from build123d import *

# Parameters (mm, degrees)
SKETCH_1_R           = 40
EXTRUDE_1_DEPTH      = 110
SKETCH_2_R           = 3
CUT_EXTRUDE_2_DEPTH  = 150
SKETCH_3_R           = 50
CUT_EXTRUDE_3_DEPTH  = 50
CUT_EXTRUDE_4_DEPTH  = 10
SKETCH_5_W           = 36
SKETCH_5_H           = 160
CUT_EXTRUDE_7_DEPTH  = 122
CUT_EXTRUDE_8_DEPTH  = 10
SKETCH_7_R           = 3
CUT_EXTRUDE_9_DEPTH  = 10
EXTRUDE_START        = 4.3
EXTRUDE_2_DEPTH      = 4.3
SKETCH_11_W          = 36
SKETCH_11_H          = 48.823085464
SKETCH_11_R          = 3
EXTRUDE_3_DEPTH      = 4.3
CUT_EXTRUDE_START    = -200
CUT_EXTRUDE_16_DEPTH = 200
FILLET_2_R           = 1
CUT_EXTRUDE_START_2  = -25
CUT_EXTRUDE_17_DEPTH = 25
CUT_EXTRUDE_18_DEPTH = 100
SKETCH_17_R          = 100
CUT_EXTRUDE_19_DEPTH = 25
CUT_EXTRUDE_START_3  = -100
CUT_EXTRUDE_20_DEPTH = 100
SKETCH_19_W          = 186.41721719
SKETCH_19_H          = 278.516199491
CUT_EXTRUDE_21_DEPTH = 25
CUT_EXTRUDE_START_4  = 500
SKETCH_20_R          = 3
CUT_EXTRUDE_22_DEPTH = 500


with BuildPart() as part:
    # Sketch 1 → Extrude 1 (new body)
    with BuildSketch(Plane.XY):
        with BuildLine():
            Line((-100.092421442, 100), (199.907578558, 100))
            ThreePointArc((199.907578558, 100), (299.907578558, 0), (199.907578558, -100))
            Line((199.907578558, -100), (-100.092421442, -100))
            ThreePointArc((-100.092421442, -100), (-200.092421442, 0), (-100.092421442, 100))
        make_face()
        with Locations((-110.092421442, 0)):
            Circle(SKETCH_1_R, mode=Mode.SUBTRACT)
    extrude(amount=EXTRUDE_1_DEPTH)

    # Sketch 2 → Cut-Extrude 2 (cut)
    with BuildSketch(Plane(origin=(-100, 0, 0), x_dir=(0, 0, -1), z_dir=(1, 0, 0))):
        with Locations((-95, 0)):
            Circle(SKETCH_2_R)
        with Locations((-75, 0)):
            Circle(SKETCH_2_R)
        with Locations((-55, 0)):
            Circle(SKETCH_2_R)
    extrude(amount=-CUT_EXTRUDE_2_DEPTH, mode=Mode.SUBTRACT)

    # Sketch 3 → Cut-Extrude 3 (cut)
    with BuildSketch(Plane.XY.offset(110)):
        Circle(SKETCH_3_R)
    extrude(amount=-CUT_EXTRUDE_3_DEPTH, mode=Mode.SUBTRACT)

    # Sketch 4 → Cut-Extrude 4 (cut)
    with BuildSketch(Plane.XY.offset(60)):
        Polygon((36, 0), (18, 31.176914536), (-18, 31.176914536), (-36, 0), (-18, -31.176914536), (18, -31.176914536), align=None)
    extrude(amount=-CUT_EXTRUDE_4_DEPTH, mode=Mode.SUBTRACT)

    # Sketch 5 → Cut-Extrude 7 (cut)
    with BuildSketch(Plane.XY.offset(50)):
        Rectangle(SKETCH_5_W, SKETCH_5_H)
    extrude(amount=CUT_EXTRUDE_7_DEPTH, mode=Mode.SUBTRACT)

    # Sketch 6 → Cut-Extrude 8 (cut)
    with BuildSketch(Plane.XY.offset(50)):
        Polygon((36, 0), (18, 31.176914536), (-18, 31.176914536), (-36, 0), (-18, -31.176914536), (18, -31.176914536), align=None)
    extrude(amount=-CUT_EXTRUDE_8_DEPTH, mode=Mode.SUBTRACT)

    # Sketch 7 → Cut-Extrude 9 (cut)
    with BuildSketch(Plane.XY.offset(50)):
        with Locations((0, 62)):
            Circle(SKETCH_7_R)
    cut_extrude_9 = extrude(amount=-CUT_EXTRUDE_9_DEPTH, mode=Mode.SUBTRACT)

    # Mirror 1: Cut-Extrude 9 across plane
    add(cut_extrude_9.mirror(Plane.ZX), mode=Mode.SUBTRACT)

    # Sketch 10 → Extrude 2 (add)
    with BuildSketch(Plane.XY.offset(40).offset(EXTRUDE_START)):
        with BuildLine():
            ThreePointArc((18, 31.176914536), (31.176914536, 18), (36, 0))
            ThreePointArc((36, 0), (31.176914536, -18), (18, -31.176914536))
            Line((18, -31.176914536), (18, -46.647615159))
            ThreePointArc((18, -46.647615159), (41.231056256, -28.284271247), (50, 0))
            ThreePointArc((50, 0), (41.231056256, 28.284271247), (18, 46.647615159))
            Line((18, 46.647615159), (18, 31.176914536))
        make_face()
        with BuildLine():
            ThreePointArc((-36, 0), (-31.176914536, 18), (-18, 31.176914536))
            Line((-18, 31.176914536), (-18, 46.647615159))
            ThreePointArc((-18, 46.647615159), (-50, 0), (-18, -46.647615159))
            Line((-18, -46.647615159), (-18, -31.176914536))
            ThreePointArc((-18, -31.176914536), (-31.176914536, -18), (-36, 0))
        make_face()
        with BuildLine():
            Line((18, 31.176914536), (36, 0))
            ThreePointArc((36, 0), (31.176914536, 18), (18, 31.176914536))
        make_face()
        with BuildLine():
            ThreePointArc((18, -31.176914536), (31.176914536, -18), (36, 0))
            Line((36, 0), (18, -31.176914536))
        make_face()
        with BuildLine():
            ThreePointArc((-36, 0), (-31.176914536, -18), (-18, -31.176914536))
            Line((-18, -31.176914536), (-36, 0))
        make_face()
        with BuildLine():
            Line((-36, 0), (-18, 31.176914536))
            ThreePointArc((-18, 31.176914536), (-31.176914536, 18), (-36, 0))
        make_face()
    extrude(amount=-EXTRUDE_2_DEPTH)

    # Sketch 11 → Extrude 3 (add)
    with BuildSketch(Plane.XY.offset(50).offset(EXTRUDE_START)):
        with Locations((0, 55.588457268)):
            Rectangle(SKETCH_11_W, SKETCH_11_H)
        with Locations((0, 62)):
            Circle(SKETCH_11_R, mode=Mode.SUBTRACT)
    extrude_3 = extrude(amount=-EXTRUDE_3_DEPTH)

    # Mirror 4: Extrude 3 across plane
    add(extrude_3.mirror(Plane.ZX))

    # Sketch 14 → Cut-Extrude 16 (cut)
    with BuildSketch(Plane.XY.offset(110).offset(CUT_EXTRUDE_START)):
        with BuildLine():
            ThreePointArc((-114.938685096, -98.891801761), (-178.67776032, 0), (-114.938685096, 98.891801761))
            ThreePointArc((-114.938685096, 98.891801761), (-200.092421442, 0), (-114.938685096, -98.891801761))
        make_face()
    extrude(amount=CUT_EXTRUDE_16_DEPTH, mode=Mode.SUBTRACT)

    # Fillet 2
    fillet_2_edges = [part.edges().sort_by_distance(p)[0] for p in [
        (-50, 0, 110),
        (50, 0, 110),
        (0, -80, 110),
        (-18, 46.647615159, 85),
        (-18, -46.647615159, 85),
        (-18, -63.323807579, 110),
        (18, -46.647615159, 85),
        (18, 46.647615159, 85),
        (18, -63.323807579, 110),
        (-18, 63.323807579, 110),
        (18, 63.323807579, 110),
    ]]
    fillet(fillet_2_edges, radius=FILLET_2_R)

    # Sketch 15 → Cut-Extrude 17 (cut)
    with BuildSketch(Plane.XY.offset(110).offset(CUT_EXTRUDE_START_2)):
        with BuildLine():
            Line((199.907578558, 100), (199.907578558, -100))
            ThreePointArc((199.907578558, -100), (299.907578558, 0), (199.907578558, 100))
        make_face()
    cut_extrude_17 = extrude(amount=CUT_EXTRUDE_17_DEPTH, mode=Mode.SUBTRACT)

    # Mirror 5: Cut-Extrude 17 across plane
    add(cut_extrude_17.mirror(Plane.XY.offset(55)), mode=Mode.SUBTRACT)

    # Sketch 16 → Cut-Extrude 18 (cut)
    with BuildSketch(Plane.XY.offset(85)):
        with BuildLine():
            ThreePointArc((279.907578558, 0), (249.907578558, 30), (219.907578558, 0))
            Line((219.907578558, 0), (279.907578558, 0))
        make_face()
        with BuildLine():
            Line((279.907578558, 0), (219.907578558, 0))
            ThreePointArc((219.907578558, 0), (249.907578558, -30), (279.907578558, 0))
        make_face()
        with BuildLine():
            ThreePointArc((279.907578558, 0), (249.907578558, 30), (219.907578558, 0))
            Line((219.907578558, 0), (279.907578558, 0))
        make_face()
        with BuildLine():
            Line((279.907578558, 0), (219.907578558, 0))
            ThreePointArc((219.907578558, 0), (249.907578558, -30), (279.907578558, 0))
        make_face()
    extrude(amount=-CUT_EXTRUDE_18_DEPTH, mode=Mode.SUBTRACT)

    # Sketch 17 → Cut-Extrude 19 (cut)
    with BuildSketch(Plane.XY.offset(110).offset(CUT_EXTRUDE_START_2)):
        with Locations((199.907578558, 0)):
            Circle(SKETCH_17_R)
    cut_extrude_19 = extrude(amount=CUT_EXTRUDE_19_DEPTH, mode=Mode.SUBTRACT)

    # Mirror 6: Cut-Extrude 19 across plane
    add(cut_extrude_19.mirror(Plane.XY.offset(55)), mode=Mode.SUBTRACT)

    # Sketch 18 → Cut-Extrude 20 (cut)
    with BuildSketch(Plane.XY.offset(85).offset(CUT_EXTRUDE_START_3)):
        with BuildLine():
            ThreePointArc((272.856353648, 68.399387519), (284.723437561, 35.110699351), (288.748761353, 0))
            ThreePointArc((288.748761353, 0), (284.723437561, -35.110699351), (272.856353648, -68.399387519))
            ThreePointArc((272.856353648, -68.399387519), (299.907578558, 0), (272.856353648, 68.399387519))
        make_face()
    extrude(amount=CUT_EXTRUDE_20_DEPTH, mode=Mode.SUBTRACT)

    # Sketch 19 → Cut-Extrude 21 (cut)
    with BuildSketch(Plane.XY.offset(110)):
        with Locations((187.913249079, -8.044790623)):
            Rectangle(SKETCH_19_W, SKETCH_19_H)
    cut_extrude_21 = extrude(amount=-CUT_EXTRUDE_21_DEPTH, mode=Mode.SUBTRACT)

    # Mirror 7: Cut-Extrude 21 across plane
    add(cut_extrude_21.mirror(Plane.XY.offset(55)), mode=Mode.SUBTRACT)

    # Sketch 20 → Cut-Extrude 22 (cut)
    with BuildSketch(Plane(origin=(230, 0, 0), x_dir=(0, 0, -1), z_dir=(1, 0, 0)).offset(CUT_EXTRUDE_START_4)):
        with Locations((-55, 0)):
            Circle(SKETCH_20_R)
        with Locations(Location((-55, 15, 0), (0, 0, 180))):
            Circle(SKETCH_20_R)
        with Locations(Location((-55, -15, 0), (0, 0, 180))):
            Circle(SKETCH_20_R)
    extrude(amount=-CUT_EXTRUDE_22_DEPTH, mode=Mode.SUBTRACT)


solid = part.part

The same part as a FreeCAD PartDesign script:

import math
import FreeCAD as App
import Part
import Sketcher
Q = App.Units.Quantity


def edges_at(feature, points):
    """Names of the edges that pass closest to the given points."""
    edges = feature.Shape.Edges
    near = lambda p: min(range(len(edges)), key=lambda i: edges[i].distToShape(Part.Vertex(*p))[0])
    return sorted({f"Edge{near(p) + 1}" for p in points})


def add_polygon(sketch, points):
    """Adds a closed chain of lines whose ends are joined by coincident constraints."""
    first, n = sketch.GeometryCount, len(points)
    for a, b in zip(points, points[1:] + points[:1]):
        sketch.addGeometry(Part.LineSegment(App.Vector(*a, 0), App.Vector(*b, 0)), False)
    for i in range(n):
        sketch.addConstraint(Sketcher.Constraint("Coincident", first + i, 2, first + (i + 1) % n, 1))

doc = App.newDocument("Part")
params = doc.addObject("Spreadsheet::Sheet", "Params")
for row, (alias, value) in enumerate([
    ("sketch1_diameter", "80 mm"),
    ("sketch1_radius", "100 mm"),
    ("sketch1_width", "300 mm"),
    ("pad1_length", "110 mm"),
    ("sketch2_diameter", "6 mm"),
    ("pocket1_length", "150 mm"),
    ("sketch3_diameter", "100 mm"),
    ("pocket2_length", "50 mm"),
    ("sketch4_width", "36 mm"),
    ("sketch4_length", "36 mm"),
    ("pocket3_length", "10 mm"),
    ("sketch5_width", "36 mm"),
    ("sketch5_height", "160 mm"),
    ("pocket4_length", "122 mm"),
    ("sketch6_width", "36 mm"),
    ("sketch6_length", "36 mm"),
    ("pocket5_length", "10 mm"),
    ("sketch7_diameter", "6 mm"),
    ("pocket6_length", "10 mm"),
    ("sketch8_radius", "50 mm"),
    ("sketch8_length", "36 mm"),
    ("pad2_length", "4.3 mm"),
    ("sketch9_diameter", "6 mm"),
    ("sketch9_width", "36 mm"),
    ("pad3_length", "4.3 mm"),
    ("sketch10_radius", "100 mm"),
    ("pocket7_length", "200 mm"),
    ("fillet_radius", "1 mm"),
    ("sketch11_radius", "100 mm"),
    ("pocket8_length", "25 mm"),
    ("sketch12_diameter", "60 mm"),
    ("pocket9_length", "100 mm"),
    ("sketch13_diameter", "200 mm"),
    ("pocket10_length", "25 mm"),
    ("sketch14_radius", "100 mm"),
    ("pocket11_length", "100 mm"),
    ("pocket12_length", "25 mm"),
    ("sketch16_diameter", "6 mm"),
    ("pocket13_length", "500 mm"),
], start=1):
    params.set(f"A{row}", alias)
    params.set(f"B{row}", "=" + value)
    params.setAlias(f"B{row}", alias)

body = doc.addObject("PartDesign::Body", "Body")

# Sketch on XY plane
sketch1 = body.newObject("Sketcher::SketchObject", "Sketch")
sketch1.AttachmentSupport = (doc.getObject("XY_Plane"), [""])
sketch1.MapMode = "FlatFace"
sketch1.addGeometry([
    Part.LineSegment(App.Vector(200, 100, 0), App.Vector(-100, 100, 0)),  # 0
    Part.ArcOfCircle(Part.Circle(App.Vector(-100, 0, 0), App.Vector(0, 0, 1), 100), math.radians(90), math.radians(270)),  # 1
    Part.LineSegment(App.Vector(-100, -100, 0), App.Vector(200, -100, 0)),  # 2
    Part.ArcOfCircle(Part.Circle(App.Vector(200, 0, 0), App.Vector(0, 0, 1), 100), math.radians(-90), math.radians(90)),  # 3
    Part.Circle(App.Vector(-110, 0, 0), App.Vector(0, 0, 1), 40),  # 4
], False)
sketch1.addConstraint([
    Sketcher.Constraint("Tangent", 0, 2, 1, 1),
    Sketcher.Constraint("Tangent", 1, 2, 2, 1),
    Sketcher.Constraint("Tangent", 2, 2, 3, 1),
    Sketcher.Constraint("Tangent", 3, 2, 0, 1),
    Sketcher.Constraint("Horizontal", 0),
    Sketcher.Constraint("Horizontal", 2),
    Sketcher.Constraint("PointOnObject", 1, 3, -1),
    Sketcher.Constraint("PointOnObject", 4, 3, -1),
    Sketcher.Constraint("Diameter", 4, 80.0),
    Sketcher.Constraint("Radius", 1, 100.0),
    Sketcher.Constraint("DistanceX", 0, 2, 0, 1, 300.0),
    Sketcher.Constraint("DistanceX", 4, 3, 1, 3, 10.0),
    Sketcher.Constraint("DistanceX", 1, 3, -1, 1, 100.092421),
])
sketch1.setExpression("Constraints[8]", "Params.sketch1_diameter")
sketch1.setExpression("Constraints[9]", "Params.sketch1_radius")
sketch1.setExpression("Constraints[10]", "Params.sketch1_width")
pad1 = body.newObject("PartDesign::Pad", "Pad")
pad1.Profile = sketch1
pad1.setExpression("Length", "Params.pad1_length")

# Sketch on YZ plane
sketch2 = body.newObject("Sketcher::SketchObject", "Sketch001")
sketch2.AttachmentSupport = (doc.getObject("YZ_Plane"), [""])
sketch2.MapMode = "FlatFace"
sketch2.AttachmentOffset = App.Placement(App.Vector(0, 0, -100), App.Rotation())
sketch2.addGeometry([
    Part.Circle(App.Vector(0, 95, 0), App.Vector(0, 0, 1), 3),
    Part.Circle(App.Vector(0, 75, 0), App.Vector(0, 0, 1), 3),
    Part.Circle(App.Vector(0, 55, 0), App.Vector(0, 0, 1), 3),
], False)
sketch2.addConstraint([
    Sketcher.Constraint("Equal", 0, 1),
    Sketcher.Constraint("Equal", 1, 2),
    Sketcher.Constraint("PointOnObject", 0, 3, -2),
    Sketcher.Constraint("PointOnObject", 1, 3, -2),
    Sketcher.Constraint("PointOnObject", 2, 3, -2),
    Sketcher.Constraint("Diameter", 0, 6.0),
    Sketcher.Constraint("DistanceY", -1, 1, 0, 3, 95.0),
    Sketcher.Constraint("DistanceY", -1, 1, 1, 3, 75.0),
    Sketcher.Constraint("DistanceY", -1, 1, 2, 3, 55.0),
])
sketch2.setExpression("Constraints[5]", "Params.sketch2_diameter")
pocket1 = body.newObject("PartDesign::Pocket", "Pocket")
pocket1.Profile = sketch2
pocket1.setExpression("Length", "Params.pocket1_length")

# Sketch on XY plane
sketch3 = body.newObject("Sketcher::SketchObject", "Sketch002")
sketch3.AttachmentSupport = (doc.getObject("XY_Plane"), [""])
sketch3.MapMode = "FlatFace"
sketch3.AttachmentOffset = App.Placement(App.Vector(0, 0, 110), App.Rotation())
sketch3.addGeometry(Part.Circle(App.Vector(0, 0, 0), App.Vector(0, 0, 1), 50), False)
sketch3.addConstraint([
    Sketcher.Constraint("Coincident", 0, 3, -1, 1),
    Sketcher.Constraint("Diameter", 0, 100.0),
])
sketch3.setExpression("Constraints[1]", "Params.sketch3_diameter")
pocket2 = body.newObject("PartDesign::Pocket", "Pocket001")
pocket2.Profile = sketch3
pocket2.setExpression("Length", "Params.pocket2_length")

# Sketch on XY plane
sketch4 = body.newObject("Sketcher::SketchObject", "Sketch003")
sketch4.AttachmentSupport = (doc.getObject("XY_Plane"), [""])
sketch4.MapMode = "FlatFace"
sketch4.AttachmentOffset = App.Placement(App.Vector(0, 0, 60), App.Rotation())
add_polygon(sketch4, [(36, 0), (18, 31), (-18, 31), (-36, 0), (-18, -31), (18, -31)])  # lines 0-5
sketch4.addConstraint([
    Sketcher.Constraint("Horizontal", 1),
    Sketcher.Constraint("Horizontal", 4),
    Sketcher.Constraint("Symmetric", 0, 2, 3, 2, -1, 1),
    Sketcher.Constraint("Symmetric", 2, 2, 5, 2, -1, 1),
    Sketcher.Constraint("PointOnObject", 2, 2, -1),
    Sketcher.Constraint("Parallel", 2, 5),
    Sketcher.Constraint("Vertical", 1, 2, 3, 2),
    Sketcher.Constraint("DistanceX", 1, 2, 1, 1, 36.0),
    Sketcher.Constraint("Angle", 0, Q("120 deg")),
    Sketcher.Constraint("Distance", 0, 36.0),
])
sketch4.setExpression("Constraints[13]", "Params.sketch4_width")
sketch4.setExpression("Constraints[15]", "Params.sketch4_length")
pocket3 = body.newObject("PartDesign::Pocket", "Pocket002")
pocket3.Profile = sketch4
pocket3.setExpression("Length", "Params.pocket3_length")

# Sketch on XY plane
sketch5 = body.newObject("Sketcher::SketchObject", "Sketch004")
sketch5.AttachmentSupport = (doc.getObject("XY_Plane"), [""])
sketch5.MapMode = "FlatFace"
sketch5.AttachmentOffset = App.Placement(App.Vector(0, 0, 50), App.Rotation())
add_polygon(sketch5, [(-18, 80), (-18, -80), (18, -80), (18, 80)])  # lines 0-3
sketch5.addConstraint([
    Sketcher.Constraint("Vertical", 0),
    Sketcher.Constraint("Horizontal", 1),
    Sketcher.Constraint("Vertical", 2),
    Sketcher.Constraint("Horizontal", 3),
    Sketcher.Constraint("Symmetric", 0, 2, 2, 2, -1, 1),
    Sketcher.Constraint("DistanceX", 1, 1, 1, 2, 36.0),
    Sketcher.Constraint("DistanceY", 0, 2, 0, 1, 160.0),
])
sketch5.setExpression("Constraints[9]", "Params.sketch5_width")
sketch5.setExpression("Constraints[10]", "Params.sketch5_height")
pocket4 = body.newObject("PartDesign::Pocket", "Pocket003")
pocket4.Profile = sketch5
pocket4.setExpression("Length", "Params.pocket4_length")
pocket4.Reversed = True

# Sketch on XY plane
sketch6 = body.newObject("Sketcher::SketchObject", "Sketch005")
sketch6.AttachmentSupport = (doc.getObject("XY_Plane"), [""])
sketch6.MapMode = "FlatFace"
sketch6.AttachmentOffset = App.Placement(App.Vector(0, 0, 50), App.Rotation())
add_polygon(sketch6, [(36, 0), (18, 31), (-18, 31), (-36, 0), (-18, -31), (18, -31)])  # lines 0-5
sketch6.addConstraint([
    Sketcher.Constraint("Horizontal", 1),
    Sketcher.Constraint("Horizontal", 4),
    Sketcher.Constraint("Symmetric", 0, 2, 3, 2, -1, 1),
    Sketcher.Constraint("Symmetric", 2, 2, 5, 2, -1, 1),
    Sketcher.Constraint("PointOnObject", 2, 2, -1),
    Sketcher.Constraint("Parallel", 2, 5),
    Sketcher.Constraint("Vertical", 1, 2, 3, 2),
    Sketcher.Constraint("DistanceX", 1, 2, 1, 1, 36.0),
    Sketcher.Constraint("Angle", 0, Q("120 deg")),
    Sketcher.Constraint("Distance", 0, 36.0),
])
sketch6.setExpression("Constraints[13]", "Params.sketch6_width")
sketch6.setExpression("Constraints[15]", "Params.sketch6_length")
pocket5 = body.newObject("PartDesign::Pocket", "Pocket004")
pocket5.Profile = sketch6
pocket5.setExpression("Length", "Params.pocket5_length")

# Sketch on XY plane
sketch7 = body.newObject("Sketcher::SketchObject", "Sketch006")
sketch7.AttachmentSupport = (doc.getObject("XY_Plane"), [""])
sketch7.MapMode = "FlatFace"
sketch7.AttachmentOffset = App.Placement(App.Vector(0, 0, 50), App.Rotation())
sketch7.addGeometry(Part.Circle(App.Vector(0, 62, 0), App.Vector(0, 0, 1), 3), False)
sketch7.addConstraint([
    Sketcher.Constraint("PointOnObject", 0, 3, -2),
    Sketcher.Constraint("Diameter", 0, 6.0),
    Sketcher.Constraint("DistanceY", -1, 1, 0, 3, 62.0),
])
sketch7.setExpression("Constraints[1]", "Params.sketch7_diameter")
pocket6 = body.newObject("PartDesign::Pocket", "Pocket005")
pocket6.Profile = sketch7
pocket6.setExpression("Length", "Params.pocket6_length")
doc.recompute()

mirrored = body.newObject("PartDesign::Mirrored", "Mirrored")
mirrored.Originals = [pocket6]
mirrored.MirrorPlane = (doc.getObject("XZ_Plane"), [""])
body.Tip = mirrored

# Sketch on XY plane
sketch8 = body.newObject("Sketcher::SketchObject", "Sketch007")
sketch8.AttachmentSupport = (doc.getObject("XY_Plane"), [""])
sketch8.MapMode = "FlatFace"
sketch8.AttachmentOffset = App.Placement(App.Vector(0, 0, 44.3), App.Rotation())
sketch8.addGeometry([
    Part.LineSegment(App.Vector(18, -31, 0), App.Vector(18, -47, 0)),  # 0
    Part.ArcOfCircle(Part.Circle(App.Vector(0, 0, 0), App.Vector(0, 0, 1), 50), math.radians(-69), math.radians(0)),  # 1
    Part.ArcOfCircle(Part.Circle(App.Vector(0, 0, 0), App.Vector(0, 0, 1), 50), math.radians(0), math.radians(69)),  # 2
    Part.LineSegment(App.Vector(18, 47, 0), App.Vector(18, 31, 0)),  # 3
    Part.LineSegment(App.Vector(18, 31, 0), App.Vector(36, 0, 0)),  # 4
    Part.LineSegment(App.Vector(36, 0, 0), App.Vector(18, -31, 0)),  # 5
    Part.LineSegment(App.Vector(-18, 31, 0), App.Vector(-18, 47, 0)),  # 6
    Part.ArcOfCircle(Part.Circle(App.Vector(0, 0, 0), App.Vector(0, 0, 1), 50), math.radians(111), math.radians(249)),  # 7
    Part.LineSegment(App.Vector(-18, -47, 0), App.Vector(-18, -31, 0)),  # 8
    Part.LineSegment(App.Vector(-18, -31, 0), App.Vector(-36, 0, 0)),  # 9
    Part.LineSegment(App.Vector(-36, 0, 0), App.Vector(-18, 31, 0)),  # 10
], False)
sketch8.addConstraint([
    Sketcher.Constraint("Coincident", 0, 2, 1, 1),
    Sketcher.Constraint("Tangent", 1, 2, 2, 1),
    Sketcher.Constraint("Coincident", 2, 2, 3, 1),
    Sketcher.Constraint("Coincident", 3, 2, 4, 1),
    Sketcher.Constraint("Coincident", 4, 2, 5, 1),
    Sketcher.Constraint("Coincident", 5, 2, 0, 1),
    Sketcher.Constraint("Coincident", 6, 2, 7, 1),
    Sketcher.Constraint("Coincident", 7, 2, 8, 1),
    Sketcher.Constraint("Coincident", 8, 2, 9, 1),
    Sketcher.Constraint("Coincident", 9, 2, 10, 1),
    Sketcher.Constraint("Coincident", 10, 2, 6, 1),
    Sketcher.Constraint("Vertical", 0),
    Sketcher.Constraint("Vertical", 3),
    Sketcher.Constraint("Vertical", 6),
    Sketcher.Constraint("Vertical", 8),
    Sketcher.Constraint("Coincident", 1, 3, -1, 1),
    Sketcher.Constraint("Coincident", 7, 3, -1, 1),
    Sketcher.Constraint("Equal", 1, 2),
    Sketcher.Constraint("Equal", 2, 7),
    Sketcher.Constraint("Symmetric", 3, 2, 8, 2, -1, 1),
    Sketcher.Constraint("Symmetric", 4, 2, 9, 2, -1, 1),
    Sketcher.Constraint("Symmetric", 5, 2, 10, 2, -1, 1),
    Sketcher.Constraint("Symmetric", 5, 2, 8, 2, -2),
    Sketcher.Constraint("PointOnObject", 1, 2, -1),
    Sketcher.Constraint("PointOnObject", 4, 2, -1),
    Sketcher.Constraint("Radius", 1, 50.0),
    Sketcher.Constraint("Angle", 4, Q("-60 deg")),
    Sketcher.Constraint("Distance", 4, 36.0),
    Sketcher.Constraint("DistanceX", -1, 1, 0, 2, 18.0),
])
sketch8.setExpression("Constraints[25]", "Params.sketch8_radius")
sketch8.setExpression("Constraints[27]", "Params.sketch8_length")
pad2 = body.newObject("PartDesign::Pad", "Pad001")
pad2.Profile = sketch8
pad2.setExpression("Length", "Params.pad2_length")
pad2.Reversed = True

# Sketch on XY plane
sketch9 = body.newObject("Sketcher::SketchObject", "Sketch008")
sketch9.AttachmentSupport = (doc.getObject("XY_Plane"), [""])
sketch9.MapMode = "FlatFace"
sketch9.AttachmentOffset = App.Placement(App.Vector(0, 0, 54.3), App.Rotation())
add_polygon(sketch9, [(-18, 80), (-18, 31.2), (18, 31.2), (18, 80)])  # lines 0-3
sketch9.addGeometry(Part.Circle(App.Vector(0, 62, 0), App.Vector(0, 0, 1), 3), False)  # 4
sketch9.addConstraint([
    Sketcher.Constraint("Vertical", 0),
    Sketcher.Constraint("Horizontal", 1),
    Sketcher.Constraint("Vertical", 2),
    Sketcher.Constraint("Horizontal", 3),
    Sketcher.Constraint("PointOnObject", 4, 3, -2),
    Sketcher.Constraint("Diameter", 4, 6.0),
    Sketcher.Constraint("DistanceX", 1, 1, 1, 2, 36.0),
    Sketcher.Constraint("DistanceY", -1, 1, 4, 3, 62.0),
    Sketcher.Constraint("DistanceX", 0, 2, -1, 1, 18.0),
    Sketcher.Constraint("DistanceY", -1, 1, 2, 2, 80.0),
    Sketcher.Constraint("DistanceY", 0, 2, 0, 1, 48.823085),
])
sketch9.setExpression("Constraints[9]", "Params.sketch9_diameter")
sketch9.setExpression("Constraints[10]", "Params.sketch9_width")
pad3 = body.newObject("PartDesign::Pad", "Pad002")
pad3.Profile = sketch9
pad3.setExpression("Length", "Params.pad3_length")
pad3.Reversed = True
doc.recompute()

mirrored2 = body.newObject("PartDesign::Mirrored", "Mirrored001")
mirrored2.Originals = [pad3]
mirrored2.MirrorPlane = (doc.getObject("XZ_Plane"), [""])
body.Tip = mirrored2

# Sketch on XY plane
sketch10 = body.newObject("Sketcher::SketchObject", "Sketch009")
sketch10.AttachmentSupport = (doc.getObject("XY_Plane"), [""])
sketch10.MapMode = "FlatFace"
sketch10.AttachmentOffset = App.Placement(App.Vector(0, 0, -90), App.Rotation())
sketch10.addGeometry([
    Part.ArcOfCircle(Part.Circle(App.Vector(-70, 0, 0), App.Vector(0, 0, 1), 109), math.radians(114), math.radians(246)),
    Part.ArcOfCircle(Part.Circle(App.Vector(-100, 0, 0), App.Vector(0, 0, 1), 100), math.radians(99), math.radians(261)),
], False)
sketch10.addConstraint([
    Sketcher.Constraint("Coincident", 0, 1, 1, 1),
    Sketcher.Constraint("Coincident", 1, 2, 0, 2),
    Sketcher.Constraint("Symmetric", 0, 1, 1, 2, -1),
    Sketcher.Constraint("Radius", 1, 100.0),
    Sketcher.Constraint("DistanceX", 1, 3, 0, 3, 30.0),
    Sketcher.Constraint("Radius", 0, 108.585339),
    Sketcher.Constraint("DistanceX", 0, 3, -1, 1, 70.092421),
])
sketch10.setExpression("Constraints[3]", "Params.sketch10_radius")
pocket7 = body.newObject("PartDesign::Pocket", "Pocket006")
pocket7.Profile = sketch10
pocket7.setExpression("Length", "Params.pocket7_length")
pocket7.Reversed = True
doc.recompute()

fillet = body.newObject("PartDesign::Fillet", "Fillet")
fillet.Base = (pocket7, edges_at(pocket7, [
    (-50, 0, 110),
    (50, 0, 110),
    (0, -80, 110),
    (-18, 46.648, 85),
    (-18, -46.648, 85),
    (-18, -63.324, 110),
    (18, -46.648, 85),
    (18, 46.648, 85),
    (18, -63.324, 110),
    (-18, 63.324, 110),
    (18, 63.324, 110),
]))
fillet.setExpression("Radius", "Params.fillet_radius")

# Sketch on XY plane
sketch11 = body.newObject("Sketcher::SketchObject", "Sketch010")
sketch11.AttachmentSupport = (doc.getObject("XY_Plane"), [""])
sketch11.MapMode = "FlatFace"
sketch11.AttachmentOffset = App.Placement(App.Vector(0, 0, 85), App.Rotation())
sketch11.addGeometry([
    Part.LineSegment(App.Vector(200, 100, 0), App.Vector(200, -100, 0)),
    Part.ArcOfCircle(Part.Circle(App.Vector(200, 0, 0), App.Vector(0, 0, 1), 100), math.radians(-90), math.radians(90)),
], False)
sketch11.addConstraint([
    Sketcher.Constraint("Coincident", 0, 1, 1, 2),
    Sketcher.Constraint("Coincident", 1, 1, 0, 2),
    Sketcher.Constraint("Vertical", 0),
    Sketcher.Constraint("PointOnObject", 1, 3, -1),
    Sketcher.Constraint("Vertical", 1, 3, 0, 1),
    Sketcher.Constraint("Radius", 1, 100.0),
    Sketcher.Constraint("DistanceX", -1, 1, 1, 3, 199.907579),
])
sketch11.setExpression("Constraints[5]", "Params.sketch11_radius")
pocket8 = body.newObject("PartDesign::Pocket", "Pocket007")
pocket8.Profile = sketch11
pocket8.setExpression("Length", "Params.pocket8_length")
pocket8.Reversed = True
doc.recompute()

datumplane = body.newObject("PartDesign::Plane", "DatumPlane")
datumplane.AttachmentSupport = (doc.getObject("XY_Plane"), [""])
datumplane.MapMode = "FlatFace"
datumplane.AttachmentOffset = App.Placement(App.Vector(0, 0, 55), App.Rotation())
mirrored3 = body.newObject("PartDesign::Mirrored", "Mirrored002")
mirrored3.Originals = [pocket8]
mirrored3.MirrorPlane = (datumplane, [""])
body.Tip = mirrored3

# Sketch on XY plane
sketch12 = body.newObject("Sketcher::SketchObject", "Sketch011")
sketch12.AttachmentSupport = (doc.getObject("XY_Plane"), [""])
sketch12.MapMode = "FlatFace"
sketch12.AttachmentOffset = App.Placement(App.Vector(0, 0, 85), App.Rotation())
sketch12.addGeometry(Part.Circle(App.Vector(250, 0, 0), App.Vector(0, 0, 1), 30), False)
sketch12.addConstraint([
    Sketcher.Constraint("PointOnObject", 0, 3, -1),
    Sketcher.Constraint("Diameter", 0, 60.0),
    Sketcher.Constraint("DistanceX", -1, 1, 0, 3, 249.907579),
])
sketch12.setExpression("Constraints[1]", "Params.sketch12_diameter")
pocket9 = body.newObject("PartDesign::Pocket", "Pocket008")
pocket9.Profile = sketch12
pocket9.setExpression("Length", "Params.pocket9_length")

# Sketch on XY plane
sketch13 = body.newObject("Sketcher::SketchObject", "Sketch012")
sketch13.AttachmentSupport = (doc.getObject("XY_Plane"), [""])
sketch13.MapMode = "FlatFace"
sketch13.AttachmentOffset = App.Placement(App.Vector(0, 0, 85), App.Rotation())
sketch13.addGeometry(Part.Circle(App.Vector(200, 0, 0), App.Vector(0, 0, 1), 100), False)
sketch13.addConstraint([
    Sketcher.Constraint("PointOnObject", 0, 3, -1),
    Sketcher.Constraint("Diameter", 0, 200.0),
    Sketcher.Constraint("DistanceX", -1, 1, 0, 3, 199.907579),
])
sketch13.setExpression("Constraints[1]", "Params.sketch13_diameter")
pocket10 = body.newObject("PartDesign::Pocket", "Pocket009")
pocket10.Profile = sketch13
pocket10.setExpression("Length", "Params.pocket10_length")
pocket10.Reversed = True
doc.recompute()

datumplane2 = body.newObject("PartDesign::Plane", "DatumPlane001")
datumplane2.AttachmentSupport = (doc.getObject("XY_Plane"), [""])
datumplane2.MapMode = "FlatFace"
datumplane2.AttachmentOffset = App.Placement(App.Vector(0, 0, 55), App.Rotation())
mirrored4 = body.newObject("PartDesign::Mirrored", "Mirrored003")
mirrored4.Originals = [pocket10]
mirrored4.MirrorPlane = (datumplane2, [""])
body.Tip = mirrored4

# Sketch on XY plane
sketch14 = body.newObject("Sketcher::SketchObject", "Sketch013")
sketch14.AttachmentSupport = (doc.getObject("XY_Plane"), [""])
sketch14.MapMode = "FlatFace"
sketch14.AttachmentOffset = App.Placement(App.Vector(0, 0, -15), App.Rotation())
sketch14.addGeometry([
    Part.ArcOfCircle(Part.Circle(App.Vector(134, 0, 0), App.Vector(0, 0, 1), 155), math.radians(0), math.radians(26)),
    Part.ArcOfCircle(Part.Circle(App.Vector(134, 0, 0), App.Vector(0, 0, 1), 155), math.radians(-26), math.radians(0)),
    Part.ArcOfCircle(Part.Circle(App.Vector(200, 0, 0), App.Vector(0, 0, 1), 100), math.radians(-43), math.radians(43)),
], False)
sketch14.addConstraint([
    Sketcher.Constraint("Tangent", 0, 1, 1, 2),
    Sketcher.Constraint("Coincident", 1, 1, 2, 1),
    Sketcher.Constraint("Coincident", 2, 2, 0, 2),
    Sketcher.Constraint("Equal", 0, 1),
    Sketcher.Constraint("Symmetric", 1, 1, 2, 2, -1),
    Sketcher.Constraint("PointOnObject", 0, 1, -1),
    Sketcher.Constraint("Radius", 2, 100.0),
    Sketcher.Constraint("Radius", 0, 155.138382),
    Sketcher.Constraint("DistanceX", 0, 3, 2, 3, 66.297199),
    Sketcher.Constraint("DistanceX", -1, 1, 0, 3, 133.610379),
])
sketch14.setExpression("Constraints[6]", "Params.sketch14_radius")
pocket11 = body.newObject("PartDesign::Pocket", "Pocket010")
pocket11.Profile = sketch14
pocket11.setExpression("Length", "Params.pocket11_length")
pocket11.Reversed = True

# Sketch on XY plane
sketch15 = body.newObject("Sketcher::SketchObject", "Sketch014")
sketch15.AttachmentSupport = (doc.getObject("XY_Plane"), [""])
sketch15.MapMode = "FlatFace"
sketch15.AttachmentOffset = App.Placement(App.Vector(0, 0, 110), App.Rotation())
add_polygon(sketch15, [(95, 131), (95, -147), (281, -147), (281, 131)])  # lines 0-3
sketch15.addConstraint([
    Sketcher.Constraint("Vertical", 0),
    Sketcher.Constraint("Horizontal", 1),
    Sketcher.Constraint("Vertical", 2),
    Sketcher.Constraint("Horizontal", 3),
    Sketcher.Constraint("DistanceY", 0, 2, 0, 1, 278.516199),
    Sketcher.Constraint("DistanceX", 1, 1, 1, 2, 186.417217),
    Sketcher.Constraint("DistanceX", -1, 1, 0, 2, 94.70464),
    Sketcher.Constraint("DistanceY", 0, 2, -1, 1, 147.30289),
])
pocket12 = body.newObject("PartDesign::Pocket", "Pocket011")
pocket12.Profile = sketch15
pocket12.setExpression("Length", "Params.pocket12_length")
doc.recompute()

datumplane3 = body.newObject("PartDesign::Plane", "DatumPlane002")
datumplane3.AttachmentSupport = (doc.getObject("XY_Plane"), [""])
datumplane3.MapMode = "FlatFace"
datumplane3.AttachmentOffset = App.Placement(App.Vector(0, 0, 55), App.Rotation())
mirrored5 = body.newObject("PartDesign::Mirrored", "Mirrored004")
mirrored5.Originals = [pocket12]
mirrored5.MirrorPlane = (datumplane3, [""])
body.Tip = mirrored5

# Sketch on YZ plane
sketch16 = body.newObject("Sketcher::SketchObject", "Sketch015")
sketch16.AttachmentSupport = (doc.getObject("YZ_Plane"), [""])
sketch16.MapMode = "FlatFace"
sketch16.AttachmentOffset = App.Placement(App.Vector(0, 0, 730), App.Rotation())
sketch16.addGeometry([
    Part.Circle(App.Vector(0, 55, 0), App.Vector(0, 0, 1), 3),
    Part.Circle(App.Vector(15, 55, 0), App.Vector(0, 0, 1), 3),
    Part.Circle(App.Vector(-15, 55, 0), App.Vector(0, 0, 1), 3),
], False)
sketch16.addConstraint([
    Sketcher.Constraint("Equal", 0, 1),
    Sketcher.Constraint("Equal", 1, 2),
    Sketcher.Constraint("Symmetric", 1, 3, 2, 3, -2),
    Sketcher.Constraint("PointOnObject", 0, 3, -2),
    Sketcher.Constraint("Horizontal", 0, 3, 1, 3),
    Sketcher.Constraint("Diameter", 0, 6.0),
    Sketcher.Constraint("DistanceY", -1, 1, 0, 3, 55.0),
    Sketcher.Constraint("DistanceX", -1, 1, 1, 3, 15.0),
])
sketch16.setExpression("Constraints[5]", "Params.sketch16_diameter")
pocket13 = body.newObject("PartDesign::Pocket", "Pocket012")
pocket13.Profile = sketch16
pocket13.setExpression("Length", "Params.pocket13_length")

doc.recompute()
